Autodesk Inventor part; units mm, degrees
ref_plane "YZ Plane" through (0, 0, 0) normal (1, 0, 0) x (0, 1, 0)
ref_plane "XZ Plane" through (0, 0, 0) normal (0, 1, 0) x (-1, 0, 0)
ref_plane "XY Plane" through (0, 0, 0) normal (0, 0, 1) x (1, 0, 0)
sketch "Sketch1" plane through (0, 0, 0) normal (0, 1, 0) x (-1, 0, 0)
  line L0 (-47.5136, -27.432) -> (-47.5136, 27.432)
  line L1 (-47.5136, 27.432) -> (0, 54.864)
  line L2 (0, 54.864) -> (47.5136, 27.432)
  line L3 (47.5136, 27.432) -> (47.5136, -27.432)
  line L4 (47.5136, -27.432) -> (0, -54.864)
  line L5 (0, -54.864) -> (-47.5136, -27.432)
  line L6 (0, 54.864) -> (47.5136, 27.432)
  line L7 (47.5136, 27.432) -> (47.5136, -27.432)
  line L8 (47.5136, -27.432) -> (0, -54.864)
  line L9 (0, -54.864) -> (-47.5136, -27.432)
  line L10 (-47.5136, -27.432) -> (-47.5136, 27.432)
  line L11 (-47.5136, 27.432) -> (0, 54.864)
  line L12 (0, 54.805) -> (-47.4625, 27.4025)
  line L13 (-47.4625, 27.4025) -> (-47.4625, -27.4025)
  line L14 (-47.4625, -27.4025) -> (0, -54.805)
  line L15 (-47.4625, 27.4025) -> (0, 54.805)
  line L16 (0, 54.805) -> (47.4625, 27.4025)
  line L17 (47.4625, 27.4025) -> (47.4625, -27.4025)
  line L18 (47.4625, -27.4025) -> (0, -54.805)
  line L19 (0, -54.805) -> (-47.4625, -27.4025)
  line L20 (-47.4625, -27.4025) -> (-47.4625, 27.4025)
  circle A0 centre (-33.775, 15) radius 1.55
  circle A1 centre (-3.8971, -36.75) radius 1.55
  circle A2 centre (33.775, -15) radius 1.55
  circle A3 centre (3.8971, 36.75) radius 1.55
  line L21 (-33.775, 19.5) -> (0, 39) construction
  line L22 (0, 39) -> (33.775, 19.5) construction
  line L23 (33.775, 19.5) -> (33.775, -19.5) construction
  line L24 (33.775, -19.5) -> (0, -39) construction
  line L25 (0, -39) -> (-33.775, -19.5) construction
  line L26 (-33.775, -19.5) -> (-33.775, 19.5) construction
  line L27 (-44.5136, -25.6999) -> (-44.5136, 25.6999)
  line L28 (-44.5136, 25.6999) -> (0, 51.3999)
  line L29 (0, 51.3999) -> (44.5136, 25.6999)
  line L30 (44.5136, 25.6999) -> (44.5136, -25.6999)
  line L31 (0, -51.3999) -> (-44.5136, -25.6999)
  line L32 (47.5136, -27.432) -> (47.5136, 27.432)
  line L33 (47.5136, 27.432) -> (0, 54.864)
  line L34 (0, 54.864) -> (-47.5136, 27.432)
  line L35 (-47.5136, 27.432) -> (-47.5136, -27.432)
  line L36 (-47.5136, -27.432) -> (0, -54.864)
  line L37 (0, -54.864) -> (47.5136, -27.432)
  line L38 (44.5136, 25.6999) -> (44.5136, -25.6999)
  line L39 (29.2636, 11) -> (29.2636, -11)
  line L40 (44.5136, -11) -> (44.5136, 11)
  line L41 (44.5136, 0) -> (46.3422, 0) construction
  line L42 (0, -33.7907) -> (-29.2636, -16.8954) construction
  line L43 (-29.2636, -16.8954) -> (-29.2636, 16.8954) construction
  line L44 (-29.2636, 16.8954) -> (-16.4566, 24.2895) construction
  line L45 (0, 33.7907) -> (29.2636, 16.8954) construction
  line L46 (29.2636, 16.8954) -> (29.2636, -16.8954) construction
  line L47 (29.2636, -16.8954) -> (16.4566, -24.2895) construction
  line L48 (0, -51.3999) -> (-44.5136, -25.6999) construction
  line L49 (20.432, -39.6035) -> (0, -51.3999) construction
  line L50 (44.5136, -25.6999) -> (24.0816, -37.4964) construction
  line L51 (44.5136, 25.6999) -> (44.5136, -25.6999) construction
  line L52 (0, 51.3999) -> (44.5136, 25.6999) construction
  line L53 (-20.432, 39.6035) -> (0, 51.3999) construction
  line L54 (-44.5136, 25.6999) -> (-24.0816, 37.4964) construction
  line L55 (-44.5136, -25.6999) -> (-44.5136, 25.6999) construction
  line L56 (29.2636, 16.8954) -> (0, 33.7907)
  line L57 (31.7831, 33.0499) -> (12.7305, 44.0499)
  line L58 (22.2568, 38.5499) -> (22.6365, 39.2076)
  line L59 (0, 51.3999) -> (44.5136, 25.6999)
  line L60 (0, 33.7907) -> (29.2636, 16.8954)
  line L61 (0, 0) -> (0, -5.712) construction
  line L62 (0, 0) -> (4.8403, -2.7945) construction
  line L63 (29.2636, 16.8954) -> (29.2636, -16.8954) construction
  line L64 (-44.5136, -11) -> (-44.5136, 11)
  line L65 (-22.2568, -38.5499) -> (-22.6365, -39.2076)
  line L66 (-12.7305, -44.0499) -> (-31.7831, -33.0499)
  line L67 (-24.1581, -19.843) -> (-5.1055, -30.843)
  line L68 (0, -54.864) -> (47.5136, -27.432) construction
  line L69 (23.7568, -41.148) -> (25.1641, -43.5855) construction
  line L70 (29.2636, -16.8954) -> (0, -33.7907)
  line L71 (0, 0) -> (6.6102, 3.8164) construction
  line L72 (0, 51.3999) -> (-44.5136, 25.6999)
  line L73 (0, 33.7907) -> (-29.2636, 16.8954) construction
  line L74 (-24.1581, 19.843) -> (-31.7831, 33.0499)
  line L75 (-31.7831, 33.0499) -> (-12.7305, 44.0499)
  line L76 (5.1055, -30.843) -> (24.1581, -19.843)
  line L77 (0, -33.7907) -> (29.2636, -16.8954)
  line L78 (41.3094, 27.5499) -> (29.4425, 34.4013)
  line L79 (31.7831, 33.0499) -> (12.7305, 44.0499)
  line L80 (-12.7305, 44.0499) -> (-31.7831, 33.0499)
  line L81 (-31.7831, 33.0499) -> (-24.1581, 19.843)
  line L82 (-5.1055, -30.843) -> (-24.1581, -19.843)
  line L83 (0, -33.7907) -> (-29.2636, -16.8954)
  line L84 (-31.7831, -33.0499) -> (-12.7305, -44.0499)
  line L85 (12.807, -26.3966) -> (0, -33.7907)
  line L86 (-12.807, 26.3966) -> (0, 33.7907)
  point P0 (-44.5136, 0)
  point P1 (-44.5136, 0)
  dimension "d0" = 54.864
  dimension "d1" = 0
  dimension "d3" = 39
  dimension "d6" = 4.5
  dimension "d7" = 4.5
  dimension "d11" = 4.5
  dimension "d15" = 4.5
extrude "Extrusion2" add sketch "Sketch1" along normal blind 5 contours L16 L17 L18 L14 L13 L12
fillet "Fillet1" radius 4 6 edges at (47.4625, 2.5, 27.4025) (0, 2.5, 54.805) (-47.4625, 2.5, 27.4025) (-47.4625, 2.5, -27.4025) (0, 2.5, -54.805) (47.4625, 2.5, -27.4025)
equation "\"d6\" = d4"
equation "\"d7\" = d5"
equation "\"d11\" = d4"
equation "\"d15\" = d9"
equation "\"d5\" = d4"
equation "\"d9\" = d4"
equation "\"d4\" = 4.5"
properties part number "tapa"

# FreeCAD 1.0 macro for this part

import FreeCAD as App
import Part
import Sketcher
Q = App.Units.Quantity


def edges_at(feature, points):
    """Names of the edges that pass closest to the given points."""
    edges = feature.Shape.Edges
    near = lambda p: min(range(len(edges)), key=lambda i: edges[i].distToShape(Part.Vertex(*p))[0])
    return sorted({f"Edge{near(p) + 1}" for p in points})


def add_polygon(sketch, points):
    """Adds a closed chain of lines whose ends are joined by coincident constraints."""
    first, n = sketch.GeometryCount, len(points)
    for a, b in zip(points, points[1:] + points[:1]):
        sketch.addGeometry(Part.LineSegment(App.Vector(*a, 0), App.Vector(*b, 0)), False)
    for i in range(n):
        sketch.addConstraint(Sketcher.Constraint("Coincident", first + i, 2, first + (i + 1) % n, 1))

doc = App.newDocument("Part")
params = doc.addObject("Spreadsheet::Sheet", "Params")
for row, (alias, value) in enumerate([
    ("sketch1_diameter", "3.1 mm"),
    ("pad1_length", "5 mm"),
    ("fillet_radius", "4 mm"),
], start=1):
    params.set(f"A{row}", alias)
    params.set(f"B{row}", "=" + value)
    params.setAlias(f"B{row}", alias)

body = doc.addObject("PartDesign::Body", "Body")

# Sketch on XZ plane
sketch1 = doc.addObject("Sketcher::SketchObject", "Sketch")
body.addObject(sketch1)
sketch1.AttachmentSupport = (doc.XZ_Plane, [""])
sketch1.MapMode = "FlatFace"
add_polygon(sketch1, [(-47.4625, 27.4025), (0, 54.805), (47.4625, 27.4025), (47.4625, -27.4025), (0, -54.805), (-47.4625, -27.4025)])  # lines 0-5
sketch1.addGeometry(Part.Circle(App.Vector(3.8971, -36.75, 0), App.Vector(0, 0, 1), 1.55), False)  # 6
sketch1.addGeometry(Part.Circle(App.Vector(-33.775, -15, 0), App.Vector(0, 0, 1), 1.55), False)  # 7
sketch1.addGeometry(Part.Circle(App.Vector(33.775, 15, 0), App.Vector(0, 0, 1), 1.55), False)  # 8
sketch1.addGeometry(Part.Circle(App.Vector(-3.8971, 36.75, 0), App.Vector(0, 0, 1), 1.55), False)  # 9
sketch1.addConstraint(Sketcher.Constraint("Vertical", 2))
sketch1.addConstraint(Sketcher.Constraint("Vertical", 5))
sketch1.addConstraint(Sketcher.Constraint("Equal", 6, 7))
sketch1.addConstraint(Sketcher.Constraint("Equal", 7, 8))
sketch1.addConstraint(Sketcher.Constraint("Equal", 8, 9))
sketch1.addConstraint(Sketcher.Constraint("Symmetric", 7, 3, 8, 3, -1, 1))
sketch1.addConstraint(Sketcher.Constraint("Symmetric", 6, 3, 9, 3, -1, 1))
sketch1.addConstraint(Sketcher.Constraint("Symmetric", 0, 2, 3, 2, -1, 1))
sketch1.addConstraint(Sketcher.Constraint("Symmetric", 1, 2, 4, 2, -1, 1))
sketch1.addConstraint(Sketcher.Constraint("PointOnObject", 0, 2, -2))
sketch1.addConstraint(Sketcher.Constraint("Parallel", 0, 3))
sketch1.addConstraint(Sketcher.Constraint("Horizontal", 2, 2, 4, 2))
sketch1.addConstraint(Sketcher.Constraint("Diameter", 6, Q("3.1 mm")))
sketch1.addConstraint(Sketcher.Constraint("Angle", 0, Q("30 deg")))
sketch1.addConstraint(Sketcher.Constraint("DistanceY", 7, 3, -1, 1, Q("15 mm")))
sketch1.addConstraint(Sketcher.Constraint("DistanceY", 6, 3, 9, 3, Q("73.5 mm")))
sketch1.addConstraint(Sketcher.Constraint("DistanceY", 2, 2, 2, 1, Q("54.805 mm")))
sketch1.addConstraint(Sketcher.Constraint("DistanceX", 7, 3, 8, 3, Q("67.55 mm")))
sketch1.addConstraint(Sketcher.Constraint("Distance", 0, Q("54.805 mm")))
sketch1.addConstraint(Sketcher.Constraint("DistanceX", -1, 1, 6, 3, Q("3.897 mm")))
sketch1.setExpression("Constraints[18]", "Params.sketch1_diameter")
pad1 = doc.addObject("PartDesign::Pad", "Pad")
body.addObject(pad1)
pad1.Profile = sketch1
pad1.setExpression("Length", "Params.pad1_length")
pad1.Reversed = True
doc.recompute()

fillet = doc.addObject("PartDesign::Fillet", "Fillet")
body.addObject(fillet)
fillet.Base = (pad1, edges_at(pad1, [
    (47.462, 2.5, 27.402),
    (0, 2.5, 54.805),
    (-47.462, 2.5, 27.402),
    (-47.462, 2.5, -27.402),
    (0, 2.5, -54.805),
    (47.462, 2.5, -27.402),
]))
fillet.setExpression("Radius", "Params.fillet_radius")

doc.recompute()
